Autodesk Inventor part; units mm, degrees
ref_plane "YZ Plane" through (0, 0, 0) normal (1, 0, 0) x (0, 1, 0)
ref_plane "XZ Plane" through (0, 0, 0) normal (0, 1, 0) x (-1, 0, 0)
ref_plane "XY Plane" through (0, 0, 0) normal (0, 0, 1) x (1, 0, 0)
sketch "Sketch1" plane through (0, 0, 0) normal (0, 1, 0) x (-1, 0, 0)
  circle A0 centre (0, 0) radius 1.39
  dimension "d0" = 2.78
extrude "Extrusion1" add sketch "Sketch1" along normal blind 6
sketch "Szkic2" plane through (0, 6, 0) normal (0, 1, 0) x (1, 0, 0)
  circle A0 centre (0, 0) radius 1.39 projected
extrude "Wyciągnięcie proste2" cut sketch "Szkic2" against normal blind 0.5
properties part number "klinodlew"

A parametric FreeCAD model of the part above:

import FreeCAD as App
import Part
import Sketcher
from FreeCAD import Vector

doc = App.newDocument("Part")
body = doc.addObject("PartDesign::Body", "Body")

# Sketch on XZ plane
sketch1 = body.newObject("Sketcher::SketchObject", "Sketch")
sketch1.AttachmentSupport = (doc.getObject("XZ_Plane"), [""])
sketch1.MapMode = "FlatFace"
sketch1.addGeometry(Part.Circle(Vector(0, 0, 0), Vector(0, 0, 1), 1.4), False)
sketch1.addConstraint([
    Sketcher.Constraint("Coincident", 0, 3, -1, 1),
    Sketcher.Constraint("Diameter", 0, 2.78),
])
pad1 = body.newObject("PartDesign::Pad", "Pad")
pad1.Profile = sketch1
pad1.Length = 6
pad1.Reversed = True

# Sketch on XZ plane
sketch2 = body.newObject("Sketcher::SketchObject", "Sketch001")
sketch2.AttachmentSupport = (doc.getObject("XZ_Plane"), [""])
sketch2.MapMode = "FlatFace"
sketch2.AttachmentOffset = App.Placement(Vector(0, 0, -6), App.Rotation())
sketch2.addGeometry(Part.Circle(Vector(0, 0, 0), Vector(0, 0, 1), 1.4), False)
sketch2.addConstraint([
    Sketcher.Constraint("Coincident", 0, 3, -1, 1),
    Sketcher.Constraint("Diameter", 0, 2.78),
])
pocket1 = body.newObject("PartDesign::Pocket", "Pocket")
pocket1.Profile = sketch2
pocket1.Length = 0.5
pocket1.Reversed = True

doc.recompute()
